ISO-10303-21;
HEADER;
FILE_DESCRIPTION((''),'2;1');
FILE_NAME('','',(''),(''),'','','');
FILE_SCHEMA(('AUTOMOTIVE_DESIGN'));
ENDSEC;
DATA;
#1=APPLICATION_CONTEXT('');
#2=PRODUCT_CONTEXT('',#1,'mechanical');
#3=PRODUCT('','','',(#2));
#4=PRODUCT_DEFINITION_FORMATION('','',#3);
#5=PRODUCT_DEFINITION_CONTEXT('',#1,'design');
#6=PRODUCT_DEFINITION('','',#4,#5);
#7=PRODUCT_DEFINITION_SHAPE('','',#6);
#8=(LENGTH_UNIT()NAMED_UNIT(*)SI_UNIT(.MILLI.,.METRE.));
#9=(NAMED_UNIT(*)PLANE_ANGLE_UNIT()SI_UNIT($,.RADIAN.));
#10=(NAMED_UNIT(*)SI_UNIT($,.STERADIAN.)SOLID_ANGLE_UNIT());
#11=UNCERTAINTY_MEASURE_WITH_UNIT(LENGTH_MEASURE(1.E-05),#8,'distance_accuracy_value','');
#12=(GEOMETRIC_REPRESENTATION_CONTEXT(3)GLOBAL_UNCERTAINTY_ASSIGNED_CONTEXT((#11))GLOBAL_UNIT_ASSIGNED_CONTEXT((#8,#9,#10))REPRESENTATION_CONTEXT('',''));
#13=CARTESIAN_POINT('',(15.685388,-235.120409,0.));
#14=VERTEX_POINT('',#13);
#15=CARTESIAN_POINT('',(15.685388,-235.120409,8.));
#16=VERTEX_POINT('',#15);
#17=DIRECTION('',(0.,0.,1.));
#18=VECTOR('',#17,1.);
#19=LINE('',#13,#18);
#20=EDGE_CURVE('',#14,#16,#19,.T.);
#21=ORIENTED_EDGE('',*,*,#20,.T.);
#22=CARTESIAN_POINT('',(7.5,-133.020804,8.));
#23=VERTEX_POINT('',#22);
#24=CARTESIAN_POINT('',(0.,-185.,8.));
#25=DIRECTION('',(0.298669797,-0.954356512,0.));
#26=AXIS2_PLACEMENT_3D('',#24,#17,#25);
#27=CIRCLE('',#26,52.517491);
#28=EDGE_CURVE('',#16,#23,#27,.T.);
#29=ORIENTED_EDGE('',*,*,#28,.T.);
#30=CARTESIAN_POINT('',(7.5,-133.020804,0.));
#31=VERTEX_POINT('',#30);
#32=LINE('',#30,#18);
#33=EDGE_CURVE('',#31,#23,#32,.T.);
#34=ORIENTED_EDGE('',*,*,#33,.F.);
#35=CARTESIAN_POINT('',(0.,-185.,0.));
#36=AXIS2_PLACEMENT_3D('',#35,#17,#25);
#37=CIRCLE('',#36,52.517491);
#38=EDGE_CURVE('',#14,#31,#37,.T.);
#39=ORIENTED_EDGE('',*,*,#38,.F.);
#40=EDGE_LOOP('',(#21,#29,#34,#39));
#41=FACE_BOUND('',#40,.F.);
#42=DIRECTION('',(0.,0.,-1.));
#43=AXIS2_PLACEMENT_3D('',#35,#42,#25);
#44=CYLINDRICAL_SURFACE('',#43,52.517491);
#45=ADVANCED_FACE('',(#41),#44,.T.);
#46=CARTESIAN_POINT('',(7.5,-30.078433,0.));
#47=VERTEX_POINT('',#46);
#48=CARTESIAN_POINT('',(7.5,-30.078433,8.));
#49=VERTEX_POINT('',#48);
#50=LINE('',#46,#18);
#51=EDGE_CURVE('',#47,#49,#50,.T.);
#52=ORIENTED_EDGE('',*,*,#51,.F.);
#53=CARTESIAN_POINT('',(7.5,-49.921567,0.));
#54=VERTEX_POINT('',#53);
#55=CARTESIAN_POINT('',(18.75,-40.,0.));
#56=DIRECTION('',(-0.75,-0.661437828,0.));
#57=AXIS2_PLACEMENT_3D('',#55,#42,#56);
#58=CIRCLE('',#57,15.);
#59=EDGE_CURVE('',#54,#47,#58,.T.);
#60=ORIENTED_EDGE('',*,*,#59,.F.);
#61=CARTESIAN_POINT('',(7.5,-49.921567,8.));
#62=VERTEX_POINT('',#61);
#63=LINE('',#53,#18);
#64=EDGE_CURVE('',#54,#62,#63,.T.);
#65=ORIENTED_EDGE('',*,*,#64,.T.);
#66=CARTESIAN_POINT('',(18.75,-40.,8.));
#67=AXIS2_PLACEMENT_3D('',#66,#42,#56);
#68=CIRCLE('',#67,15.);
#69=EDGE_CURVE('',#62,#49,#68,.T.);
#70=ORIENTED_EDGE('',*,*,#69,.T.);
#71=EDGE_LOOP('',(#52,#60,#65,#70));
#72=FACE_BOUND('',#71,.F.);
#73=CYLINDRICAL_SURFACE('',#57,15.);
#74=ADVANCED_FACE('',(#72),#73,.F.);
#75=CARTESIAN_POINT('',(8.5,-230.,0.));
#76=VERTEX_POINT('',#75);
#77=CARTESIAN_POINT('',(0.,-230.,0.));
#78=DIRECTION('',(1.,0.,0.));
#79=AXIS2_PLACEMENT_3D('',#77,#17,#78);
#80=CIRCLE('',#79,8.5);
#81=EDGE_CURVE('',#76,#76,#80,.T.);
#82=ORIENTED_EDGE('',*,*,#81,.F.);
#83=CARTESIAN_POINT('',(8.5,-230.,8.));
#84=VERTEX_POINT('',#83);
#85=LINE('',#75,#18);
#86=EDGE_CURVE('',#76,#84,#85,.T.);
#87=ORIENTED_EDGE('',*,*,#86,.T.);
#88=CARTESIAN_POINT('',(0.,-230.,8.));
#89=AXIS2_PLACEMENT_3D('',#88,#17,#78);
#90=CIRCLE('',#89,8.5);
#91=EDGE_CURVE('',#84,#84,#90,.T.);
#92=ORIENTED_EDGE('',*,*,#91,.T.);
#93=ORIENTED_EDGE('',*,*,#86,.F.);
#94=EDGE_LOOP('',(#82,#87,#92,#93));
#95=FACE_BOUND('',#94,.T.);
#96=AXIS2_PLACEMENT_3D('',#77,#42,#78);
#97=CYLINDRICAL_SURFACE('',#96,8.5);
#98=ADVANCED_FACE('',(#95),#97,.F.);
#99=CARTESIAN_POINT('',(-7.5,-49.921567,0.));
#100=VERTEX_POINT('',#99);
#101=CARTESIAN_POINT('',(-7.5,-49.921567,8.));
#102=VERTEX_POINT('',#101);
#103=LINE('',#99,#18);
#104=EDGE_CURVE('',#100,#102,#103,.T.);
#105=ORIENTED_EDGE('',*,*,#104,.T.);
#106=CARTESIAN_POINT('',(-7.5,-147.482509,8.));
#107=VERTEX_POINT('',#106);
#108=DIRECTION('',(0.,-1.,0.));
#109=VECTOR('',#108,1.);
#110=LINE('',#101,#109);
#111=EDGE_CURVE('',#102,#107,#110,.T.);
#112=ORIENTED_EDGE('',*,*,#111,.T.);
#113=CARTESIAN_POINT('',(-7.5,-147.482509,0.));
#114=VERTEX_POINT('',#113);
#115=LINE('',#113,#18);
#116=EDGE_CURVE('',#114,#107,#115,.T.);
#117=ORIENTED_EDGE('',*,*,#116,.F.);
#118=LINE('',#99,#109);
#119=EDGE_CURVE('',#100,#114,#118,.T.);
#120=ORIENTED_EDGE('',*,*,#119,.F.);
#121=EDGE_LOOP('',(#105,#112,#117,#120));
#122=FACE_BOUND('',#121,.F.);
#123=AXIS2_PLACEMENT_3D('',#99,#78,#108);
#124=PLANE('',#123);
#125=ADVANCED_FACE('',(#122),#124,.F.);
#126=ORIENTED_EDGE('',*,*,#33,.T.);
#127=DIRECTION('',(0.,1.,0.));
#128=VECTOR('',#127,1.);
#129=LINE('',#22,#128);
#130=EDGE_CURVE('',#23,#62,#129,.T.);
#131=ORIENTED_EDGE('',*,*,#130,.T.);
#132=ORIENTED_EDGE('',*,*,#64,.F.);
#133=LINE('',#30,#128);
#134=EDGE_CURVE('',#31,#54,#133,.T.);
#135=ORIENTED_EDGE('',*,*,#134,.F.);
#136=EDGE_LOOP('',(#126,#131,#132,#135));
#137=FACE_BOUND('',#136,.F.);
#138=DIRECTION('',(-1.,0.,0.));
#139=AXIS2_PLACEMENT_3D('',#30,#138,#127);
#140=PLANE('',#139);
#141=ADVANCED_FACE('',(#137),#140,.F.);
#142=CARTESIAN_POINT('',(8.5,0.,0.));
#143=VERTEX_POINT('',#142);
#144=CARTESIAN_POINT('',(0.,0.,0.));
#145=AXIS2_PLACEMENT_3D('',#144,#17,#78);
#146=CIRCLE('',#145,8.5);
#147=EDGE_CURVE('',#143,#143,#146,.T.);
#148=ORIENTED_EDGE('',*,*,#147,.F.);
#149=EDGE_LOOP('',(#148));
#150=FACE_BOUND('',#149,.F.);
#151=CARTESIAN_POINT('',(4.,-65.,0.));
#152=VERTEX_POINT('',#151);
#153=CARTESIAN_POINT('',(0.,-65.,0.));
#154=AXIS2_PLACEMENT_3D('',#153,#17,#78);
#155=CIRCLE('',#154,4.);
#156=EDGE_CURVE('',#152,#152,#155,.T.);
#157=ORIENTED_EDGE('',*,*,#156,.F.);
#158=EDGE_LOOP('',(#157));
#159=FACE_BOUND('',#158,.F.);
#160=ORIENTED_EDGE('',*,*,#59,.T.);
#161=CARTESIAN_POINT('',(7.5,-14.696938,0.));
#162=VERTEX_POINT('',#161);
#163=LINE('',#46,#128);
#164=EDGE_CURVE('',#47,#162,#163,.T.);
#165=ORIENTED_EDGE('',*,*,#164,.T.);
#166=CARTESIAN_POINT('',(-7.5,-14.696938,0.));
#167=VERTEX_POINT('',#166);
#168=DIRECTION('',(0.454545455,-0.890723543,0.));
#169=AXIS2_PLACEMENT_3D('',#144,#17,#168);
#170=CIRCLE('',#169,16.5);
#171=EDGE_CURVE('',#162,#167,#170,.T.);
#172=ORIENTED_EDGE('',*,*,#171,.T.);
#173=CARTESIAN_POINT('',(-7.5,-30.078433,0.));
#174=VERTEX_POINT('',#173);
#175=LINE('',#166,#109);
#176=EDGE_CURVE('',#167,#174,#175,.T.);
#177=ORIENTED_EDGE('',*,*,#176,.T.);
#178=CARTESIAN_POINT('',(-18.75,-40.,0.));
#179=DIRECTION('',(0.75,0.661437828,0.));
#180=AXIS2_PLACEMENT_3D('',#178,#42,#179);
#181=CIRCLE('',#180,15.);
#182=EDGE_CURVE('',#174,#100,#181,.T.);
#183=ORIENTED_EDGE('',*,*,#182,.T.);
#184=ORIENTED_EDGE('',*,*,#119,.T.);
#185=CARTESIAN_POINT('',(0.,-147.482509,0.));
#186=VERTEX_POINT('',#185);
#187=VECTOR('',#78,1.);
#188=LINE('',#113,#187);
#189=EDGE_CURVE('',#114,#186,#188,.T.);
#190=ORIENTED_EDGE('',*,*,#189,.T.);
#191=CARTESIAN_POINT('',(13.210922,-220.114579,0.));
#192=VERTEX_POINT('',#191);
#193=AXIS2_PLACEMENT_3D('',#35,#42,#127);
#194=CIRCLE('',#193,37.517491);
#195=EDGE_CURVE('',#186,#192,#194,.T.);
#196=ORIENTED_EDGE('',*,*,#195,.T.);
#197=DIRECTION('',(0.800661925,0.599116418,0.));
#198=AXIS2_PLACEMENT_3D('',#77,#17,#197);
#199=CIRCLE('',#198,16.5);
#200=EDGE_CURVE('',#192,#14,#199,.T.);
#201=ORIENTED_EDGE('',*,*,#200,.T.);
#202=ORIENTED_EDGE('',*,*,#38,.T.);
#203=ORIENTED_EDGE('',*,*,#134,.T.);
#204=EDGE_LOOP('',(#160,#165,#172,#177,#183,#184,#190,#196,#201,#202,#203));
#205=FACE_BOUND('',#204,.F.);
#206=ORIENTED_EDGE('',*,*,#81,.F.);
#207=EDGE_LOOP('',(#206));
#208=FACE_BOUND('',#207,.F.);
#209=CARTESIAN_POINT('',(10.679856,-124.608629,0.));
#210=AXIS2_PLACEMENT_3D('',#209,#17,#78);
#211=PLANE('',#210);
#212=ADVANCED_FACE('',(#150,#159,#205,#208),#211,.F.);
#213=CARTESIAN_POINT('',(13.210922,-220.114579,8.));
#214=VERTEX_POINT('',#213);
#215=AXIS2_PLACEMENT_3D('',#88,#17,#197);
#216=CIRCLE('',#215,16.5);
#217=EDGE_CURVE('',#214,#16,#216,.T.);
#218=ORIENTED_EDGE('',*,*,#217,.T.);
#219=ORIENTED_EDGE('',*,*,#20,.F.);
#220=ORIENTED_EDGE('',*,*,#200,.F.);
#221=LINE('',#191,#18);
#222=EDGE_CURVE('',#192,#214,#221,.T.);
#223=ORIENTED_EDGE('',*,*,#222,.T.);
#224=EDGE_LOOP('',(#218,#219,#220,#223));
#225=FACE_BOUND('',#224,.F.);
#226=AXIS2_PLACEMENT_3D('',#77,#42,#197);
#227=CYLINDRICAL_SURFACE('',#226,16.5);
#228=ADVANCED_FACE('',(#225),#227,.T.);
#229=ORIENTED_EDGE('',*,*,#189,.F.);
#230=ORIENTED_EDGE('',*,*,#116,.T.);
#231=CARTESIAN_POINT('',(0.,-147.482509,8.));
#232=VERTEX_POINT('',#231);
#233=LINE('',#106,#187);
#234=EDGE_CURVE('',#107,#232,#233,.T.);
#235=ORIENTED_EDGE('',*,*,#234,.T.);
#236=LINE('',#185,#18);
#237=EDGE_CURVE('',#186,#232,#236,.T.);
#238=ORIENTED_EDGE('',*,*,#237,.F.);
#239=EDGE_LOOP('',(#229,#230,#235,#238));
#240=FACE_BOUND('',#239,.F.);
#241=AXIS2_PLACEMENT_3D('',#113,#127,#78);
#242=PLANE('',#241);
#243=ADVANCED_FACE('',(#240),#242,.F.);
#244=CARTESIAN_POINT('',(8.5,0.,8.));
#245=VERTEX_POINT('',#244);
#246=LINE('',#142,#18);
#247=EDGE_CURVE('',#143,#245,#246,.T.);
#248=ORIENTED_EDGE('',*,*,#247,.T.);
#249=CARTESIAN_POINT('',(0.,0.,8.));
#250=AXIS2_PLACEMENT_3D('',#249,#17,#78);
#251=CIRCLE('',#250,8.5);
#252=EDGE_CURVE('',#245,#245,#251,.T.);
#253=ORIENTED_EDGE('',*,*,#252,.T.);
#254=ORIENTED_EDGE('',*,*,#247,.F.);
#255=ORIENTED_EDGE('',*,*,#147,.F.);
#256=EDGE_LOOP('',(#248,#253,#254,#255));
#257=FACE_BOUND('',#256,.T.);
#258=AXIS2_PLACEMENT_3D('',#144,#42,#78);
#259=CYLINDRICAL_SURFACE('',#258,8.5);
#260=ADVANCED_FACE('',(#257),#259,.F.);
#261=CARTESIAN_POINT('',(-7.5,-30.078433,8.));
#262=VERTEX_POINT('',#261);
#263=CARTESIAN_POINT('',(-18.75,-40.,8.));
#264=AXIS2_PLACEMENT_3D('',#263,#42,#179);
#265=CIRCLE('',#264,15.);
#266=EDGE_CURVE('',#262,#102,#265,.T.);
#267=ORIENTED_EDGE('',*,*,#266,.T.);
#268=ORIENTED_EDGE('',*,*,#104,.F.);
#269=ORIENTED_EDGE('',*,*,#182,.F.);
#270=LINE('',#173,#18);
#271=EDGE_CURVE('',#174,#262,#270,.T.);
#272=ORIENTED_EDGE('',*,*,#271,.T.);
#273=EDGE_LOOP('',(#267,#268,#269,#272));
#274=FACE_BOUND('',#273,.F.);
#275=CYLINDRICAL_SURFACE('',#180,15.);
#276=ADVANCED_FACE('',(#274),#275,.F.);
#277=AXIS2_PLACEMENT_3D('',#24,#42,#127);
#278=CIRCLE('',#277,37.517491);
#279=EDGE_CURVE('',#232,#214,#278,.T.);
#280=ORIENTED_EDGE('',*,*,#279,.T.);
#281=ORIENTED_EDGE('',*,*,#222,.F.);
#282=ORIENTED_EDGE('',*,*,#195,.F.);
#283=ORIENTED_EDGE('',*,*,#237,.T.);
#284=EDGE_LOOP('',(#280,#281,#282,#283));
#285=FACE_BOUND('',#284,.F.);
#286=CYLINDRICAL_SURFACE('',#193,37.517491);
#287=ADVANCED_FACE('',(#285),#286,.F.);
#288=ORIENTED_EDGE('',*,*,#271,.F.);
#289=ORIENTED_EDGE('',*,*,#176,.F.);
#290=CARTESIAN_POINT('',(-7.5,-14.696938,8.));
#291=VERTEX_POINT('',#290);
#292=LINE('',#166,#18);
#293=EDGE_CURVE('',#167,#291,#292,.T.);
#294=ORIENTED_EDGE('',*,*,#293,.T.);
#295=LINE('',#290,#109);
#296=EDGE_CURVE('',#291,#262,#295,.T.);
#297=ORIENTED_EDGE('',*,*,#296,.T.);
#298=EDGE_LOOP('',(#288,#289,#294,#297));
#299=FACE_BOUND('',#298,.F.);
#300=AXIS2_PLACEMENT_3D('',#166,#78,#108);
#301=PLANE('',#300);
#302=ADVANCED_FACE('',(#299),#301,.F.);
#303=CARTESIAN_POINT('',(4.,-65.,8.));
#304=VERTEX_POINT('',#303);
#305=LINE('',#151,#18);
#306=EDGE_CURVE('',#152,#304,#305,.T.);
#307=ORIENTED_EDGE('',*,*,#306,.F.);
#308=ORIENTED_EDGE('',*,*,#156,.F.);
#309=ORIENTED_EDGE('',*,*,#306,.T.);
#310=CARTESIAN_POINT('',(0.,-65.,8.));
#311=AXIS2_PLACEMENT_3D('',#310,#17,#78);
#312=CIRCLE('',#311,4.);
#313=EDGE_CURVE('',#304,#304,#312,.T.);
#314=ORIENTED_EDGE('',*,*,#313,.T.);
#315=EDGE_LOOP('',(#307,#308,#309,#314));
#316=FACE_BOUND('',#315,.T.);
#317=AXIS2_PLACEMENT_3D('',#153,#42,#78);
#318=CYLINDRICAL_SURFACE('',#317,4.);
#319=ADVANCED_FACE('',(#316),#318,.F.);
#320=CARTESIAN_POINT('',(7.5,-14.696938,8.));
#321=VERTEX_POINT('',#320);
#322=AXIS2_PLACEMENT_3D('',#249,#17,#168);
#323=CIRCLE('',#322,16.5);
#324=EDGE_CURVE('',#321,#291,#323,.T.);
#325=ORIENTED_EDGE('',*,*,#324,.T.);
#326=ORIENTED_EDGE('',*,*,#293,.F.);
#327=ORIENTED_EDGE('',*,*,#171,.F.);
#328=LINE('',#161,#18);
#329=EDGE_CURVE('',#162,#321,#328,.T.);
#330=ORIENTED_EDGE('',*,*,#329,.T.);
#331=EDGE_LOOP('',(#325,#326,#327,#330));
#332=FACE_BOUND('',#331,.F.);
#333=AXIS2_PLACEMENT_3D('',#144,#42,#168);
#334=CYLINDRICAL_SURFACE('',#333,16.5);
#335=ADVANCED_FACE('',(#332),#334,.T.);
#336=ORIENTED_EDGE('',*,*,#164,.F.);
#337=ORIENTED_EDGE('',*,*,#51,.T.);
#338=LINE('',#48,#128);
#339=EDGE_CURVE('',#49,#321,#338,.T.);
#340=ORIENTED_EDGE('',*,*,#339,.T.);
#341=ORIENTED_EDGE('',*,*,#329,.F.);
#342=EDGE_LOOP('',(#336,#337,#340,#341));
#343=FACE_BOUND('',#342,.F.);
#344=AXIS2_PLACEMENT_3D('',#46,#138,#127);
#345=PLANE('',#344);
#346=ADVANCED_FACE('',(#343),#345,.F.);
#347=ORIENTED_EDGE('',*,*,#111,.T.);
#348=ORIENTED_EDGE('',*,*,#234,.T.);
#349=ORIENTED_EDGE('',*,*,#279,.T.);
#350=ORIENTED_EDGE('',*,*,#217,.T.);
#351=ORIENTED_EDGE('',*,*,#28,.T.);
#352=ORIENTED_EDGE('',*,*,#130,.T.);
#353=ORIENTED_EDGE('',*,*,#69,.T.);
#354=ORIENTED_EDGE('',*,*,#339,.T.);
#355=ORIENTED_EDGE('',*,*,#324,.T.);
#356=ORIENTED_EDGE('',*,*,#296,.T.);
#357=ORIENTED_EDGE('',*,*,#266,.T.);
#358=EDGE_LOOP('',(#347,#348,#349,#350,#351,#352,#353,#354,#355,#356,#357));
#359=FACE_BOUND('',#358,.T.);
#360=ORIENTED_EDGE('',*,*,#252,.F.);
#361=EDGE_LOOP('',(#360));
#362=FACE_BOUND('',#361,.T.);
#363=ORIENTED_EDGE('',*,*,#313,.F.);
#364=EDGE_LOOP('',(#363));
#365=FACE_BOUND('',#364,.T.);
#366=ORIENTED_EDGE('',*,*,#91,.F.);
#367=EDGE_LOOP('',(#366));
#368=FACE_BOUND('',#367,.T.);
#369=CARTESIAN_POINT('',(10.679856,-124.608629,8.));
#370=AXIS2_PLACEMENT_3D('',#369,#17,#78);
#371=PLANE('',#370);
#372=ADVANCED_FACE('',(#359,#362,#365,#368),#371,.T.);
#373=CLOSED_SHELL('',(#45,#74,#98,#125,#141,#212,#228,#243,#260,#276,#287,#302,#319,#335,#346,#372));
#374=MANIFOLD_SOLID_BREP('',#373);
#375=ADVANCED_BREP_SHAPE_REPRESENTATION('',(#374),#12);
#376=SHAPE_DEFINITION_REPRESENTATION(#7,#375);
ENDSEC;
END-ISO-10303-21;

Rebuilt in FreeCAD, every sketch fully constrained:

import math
import FreeCAD as App
import Part
import Sketcher
from FreeCAD import Vector
Q = App.Units.Quantity

doc = App.newDocument("Part")
body = doc.addObject("PartDesign::Body", "Body")

# Sketch on XY plane
sketch1 = doc.addObject("Sketcher::SketchObject", "Sketch")
body.addObject(sketch1)
sketch1.AttachmentSupport = (doc.XY_Plane, [""])
sketch1.MapMode = "FlatFace"
sketch1.addGeometry([
    Part.ArcOfCircle(Part.Circle(Vector(0, 0, 0), Vector(0, 0, 1), 16.5), math.radians(-63), math.radians(243)),  # 0
    Part.LineSegment(Vector(-7.5, -14.7, 0), Vector(-7.5, -30.1, 0)),  # 1
    Part.ArcOfCircle(Part.Circle(Vector(-18.7, -40, 0), Vector(0, 0, 1), 15), math.radians(-41), math.radians(41)),  # 2
    Part.LineSegment(Vector(-7.5, -49.9, 0), Vector(-7.5, -147.5, 0)),  # 3
    Part.LineSegment(Vector(-7.5, -147.5, 0), Vector(0, -147.5, 0)),  # 4
    Part.ArcOfCircle(Part.Circle(Vector(0, -185, 0), Vector(0, 0, 1), 37.5), math.radians(-69), math.radians(90)),  # 5
    Part.ArcOfCircle(Part.Circle(Vector(0, -230, 0), Vector(0, 0, 1), 16.5), math.radians(37), math.radians(342)),  # 6
    Part.ArcOfCircle(Part.Circle(Vector(0, -185, 0), Vector(0, 0, 1), 52.5), math.radians(-73), math.radians(82)),  # 7
    Part.LineSegment(Vector(7.5, -133, 0), Vector(7.5, -49.9, 0)),  # 8
    Part.ArcOfCircle(Part.Circle(Vector(18.7, -40, 0), Vector(0, 0, 1), 15), math.radians(139), math.radians(221)),  # 9
    Part.LineSegment(Vector(7.5, -30.1, 0), Vector(7.5, -14.7, 0)),  # 10
    Part.Circle(Vector(0, -230, 0), Vector(0, 0, 1), 8.5),  # 11
    Part.Circle(Vector(0, -65, 0), Vector(0, 0, 1), 4),  # 12
    Part.Circle(Vector(0, 0, 0), Vector(0, 0, 1), 8.5),  # 13
], False)
sketch1.addConstraint([
    Sketcher.Constraint("Coincident", 0, 2, 1, 1),
    Sketcher.Constraint("Coincident", 1, 2, 2, 2),
    Sketcher.Constraint("Coincident", 2, 1, 3, 1),
    Sketcher.Constraint("Coincident", 3, 2, 4, 1),
    Sketcher.Constraint("Tangent", 4, 2, 5, 2),
    Sketcher.Constraint("Coincident", 5, 1, 6, 1),
    Sketcher.Constraint("Coincident", 6, 2, 7, 1),
    Sketcher.Constraint("Coincident", 7, 2, 8, 1),
    Sketcher.Constraint("Coincident", 8, 2, 9, 2),
    Sketcher.Constraint("Coincident", 9, 1, 10, 1),
    Sketcher.Constraint("Coincident", 10, 2, 0, 1),
    Sketcher.Constraint("Vertical", 1),
    Sketcher.Constraint("Vertical", 3),
    Sketcher.Constraint("Horizontal", 4),
    Sketcher.Constraint("Vertical", 8),
    Sketcher.Constraint("Vertical", 10),
    Sketcher.Constraint("Coincident", 0, 3, -1, 1),
    Sketcher.Constraint("Coincident", 13, 3, -1, 1),
    Sketcher.Constraint("Coincident", 7, 3, 5, 3),
    Sketcher.Constraint("Coincident", 11, 3, 6, 3),
    Sketcher.Constraint("Equal", 0, 6),
    Sketcher.Constraint("Equal", 2, 9),
    Sketcher.Constraint("Equal", 11, 13),
    Sketcher.Constraint("Symmetric", 2, 3, 9, 3, -2),
    Sketcher.Constraint("PointOnObject", 5, 3, -2),
    Sketcher.Constraint("PointOnObject", 6, 3, -2),
    Sketcher.Constraint("PointOnObject", 12, 3, -2),
    Sketcher.Constraint("Horizontal", 2, 1, 8, 2),
    Sketcher.Constraint("Horizontal", 1, 2, 9, 1),
    Sketcher.Constraint("Vertical", 1, 2, 2, 1),
    Sketcher.Constraint("Diameter", 11, Q("17 mm")),
    Sketcher.Constraint("Diameter", 12, Q("8 mm")),
    Sketcher.Constraint("Radius", 2, Q("15 mm")),
    Sketcher.Constraint("Radius", 0, Q("16.5 mm")),
    Sketcher.Constraint("DistanceX", 4, 1, 4, 2, Q("7.5 mm")),
    Sketcher.Constraint("DistanceY", 2, 3, -1, 1, Q("40 mm")),
    Sketcher.Constraint("DistanceY", 5, 3, -1, 1, Q("185 mm")),
    Sketcher.Constraint("DistanceY", 6, 3, -1, 1, Q("230 mm")),
    Sketcher.Constraint("DistanceY", 12, 3, -1, 1, Q("65 mm")),
    Sketcher.Constraint("DistanceX", 2, 3, 9, 3, Q("37.5 mm")),
    Sketcher.Constraint("Radius", 5, Q("37.517491 mm")),
    Sketcher.Constraint("Radius", 7, Q("52.517491 mm")),
])
pad1 = doc.addObject("PartDesign::Pad", "Pad")
body.addObject(pad1)
pad1.Profile = sketch1
pad1.Length = 8

doc.recompute()
